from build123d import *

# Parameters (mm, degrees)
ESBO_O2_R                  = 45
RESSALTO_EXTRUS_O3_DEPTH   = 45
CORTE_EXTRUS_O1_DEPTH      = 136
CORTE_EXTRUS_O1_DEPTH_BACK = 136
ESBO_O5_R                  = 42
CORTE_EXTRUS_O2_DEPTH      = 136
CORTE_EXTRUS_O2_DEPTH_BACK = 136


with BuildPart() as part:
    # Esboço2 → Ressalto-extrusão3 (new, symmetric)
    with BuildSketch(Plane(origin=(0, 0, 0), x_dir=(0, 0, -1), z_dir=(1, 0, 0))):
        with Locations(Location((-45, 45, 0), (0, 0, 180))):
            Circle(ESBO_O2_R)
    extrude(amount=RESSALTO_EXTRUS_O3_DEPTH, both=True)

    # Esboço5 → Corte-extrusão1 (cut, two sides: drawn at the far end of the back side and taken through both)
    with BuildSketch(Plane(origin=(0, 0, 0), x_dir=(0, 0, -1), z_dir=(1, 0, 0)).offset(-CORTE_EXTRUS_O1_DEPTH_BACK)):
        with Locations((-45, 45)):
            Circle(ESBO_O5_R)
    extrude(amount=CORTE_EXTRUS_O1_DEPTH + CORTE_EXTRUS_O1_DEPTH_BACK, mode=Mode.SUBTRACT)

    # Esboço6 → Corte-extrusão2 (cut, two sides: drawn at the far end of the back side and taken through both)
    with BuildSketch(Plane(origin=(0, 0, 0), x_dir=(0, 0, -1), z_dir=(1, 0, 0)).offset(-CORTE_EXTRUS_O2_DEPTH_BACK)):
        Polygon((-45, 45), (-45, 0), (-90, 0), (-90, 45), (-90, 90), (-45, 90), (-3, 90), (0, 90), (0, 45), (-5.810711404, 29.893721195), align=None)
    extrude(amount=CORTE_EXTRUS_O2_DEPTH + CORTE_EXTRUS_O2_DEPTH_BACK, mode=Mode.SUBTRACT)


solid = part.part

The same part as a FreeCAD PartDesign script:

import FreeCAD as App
import Part
import Sketcher


def add_polygon(sketch, points):
    """Adds a closed chain of lines whose ends are joined by coincident constraints."""
    first, n = sketch.GeometryCount, len(points)
    for a, b in zip(points, points[1:] + points[:1]):
        sketch.addGeometry(Part.LineSegment(App.Vector(*a, 0), App.Vector(*b, 0)), False)
    for i in range(n):
        sketch.addConstraint(Sketcher.Constraint("Coincident", first + i, 2, first + (i + 1) % n, 1))

doc = App.newDocument("Part")
body = doc.addObject("PartDesign::Body", "Body")

# Sketch on YZ plane
sketch1 = body.newObject("Sketcher::SketchObject", "Sketch")
sketch1.AttachmentSupport = (doc.getObject("YZ_Plane"), [""])
sketch1.MapMode = "FlatFace"
sketch1.addGeometry(Part.Circle(App.Vector(45, 45, 0), App.Vector(0, 0, 1), 45), False)
sketch1.addConstraint([
    Sketcher.Constraint("Diameter", 0, 90.0),
    Sketcher.Constraint("DistanceX", -1, 1, 0, 3, 45.0),
    Sketcher.Constraint("DistanceY", -1, 1, 0, 3, 45.0),
])
pad1 = body.newObject("PartDesign::Pad", "Pad")
pad1.Profile = sketch1
pad1.Length = 90
pad1.Midplane = True

# Sketch on YZ plane
sketch2 = body.newObject("Sketcher::SketchObject", "Sketch001")
sketch2.AttachmentSupport = (doc.getObject("YZ_Plane"), [""])
sketch2.MapMode = "FlatFace"
sketch2.addGeometry(Part.Circle(App.Vector(45, 45, 0), App.Vector(0, 0, 1), 42), False)
sketch2.addConstraint([
    Sketcher.Constraint("Diameter", 0, 84.0),
    Sketcher.Constraint("DistanceX", -1, 1, 0, 3, 45.0),
    Sketcher.Constraint("DistanceY", -1, 1, 0, 3, 45.0),
])
pocket1 = body.newObject("PartDesign::Pocket", "Pocket")
pocket1.Profile = sketch2
pocket1.Type = "ThroughAll"
pocket1.Midplane = True

# Sketch on YZ plane
sketch3 = body.newObject("Sketcher::SketchObject", "Sketch002")
sketch3.AttachmentSupport = (doc.getObject("YZ_Plane"), [""])
sketch3.MapMode = "FlatFace"
add_polygon(sketch3, [(0, 45), (45, 45), (29.893721, 5.810711), (45, 0), (90, 0), (90, 90), (0, 90)])  # lines 0-6
sketch3.addConstraint([
    Sketcher.Constraint("Horizontal", 0),
    Sketcher.Constraint("Horizontal", 3),
    Sketcher.Constraint("Vertical", 4),
    Sketcher.Constraint("Horizontal", 5),
    Sketcher.Constraint("Vertical", 6),
    Sketcher.Constraint("PointOnObject", 2, 2, -1),
    Sketcher.Constraint("PointOnObject", 5, 2, -2),
    Sketcher.Constraint("Vertical", 0, 2, 2, 2),
    Sketcher.Constraint("Equal", 0, 3),
    Sketcher.Constraint("Equal", 5, 4),
    Sketcher.Constraint("Equal", 3, 6),
    Sketcher.Constraint("DistanceX", 0, 1, 0, 2, 45.0),
    Sketcher.Constraint("Distance", 1, 42.0),
    Sketcher.Constraint("DistanceX", -1, 1, 1, 2, 29.893721),
])
pocket2 = body.newObject("PartDesign::Pocket", "Pocket001")
pocket2.Profile = sketch3
pocket2.Type = "ThroughAll"
pocket2.Midplane = True

doc.recompute()
